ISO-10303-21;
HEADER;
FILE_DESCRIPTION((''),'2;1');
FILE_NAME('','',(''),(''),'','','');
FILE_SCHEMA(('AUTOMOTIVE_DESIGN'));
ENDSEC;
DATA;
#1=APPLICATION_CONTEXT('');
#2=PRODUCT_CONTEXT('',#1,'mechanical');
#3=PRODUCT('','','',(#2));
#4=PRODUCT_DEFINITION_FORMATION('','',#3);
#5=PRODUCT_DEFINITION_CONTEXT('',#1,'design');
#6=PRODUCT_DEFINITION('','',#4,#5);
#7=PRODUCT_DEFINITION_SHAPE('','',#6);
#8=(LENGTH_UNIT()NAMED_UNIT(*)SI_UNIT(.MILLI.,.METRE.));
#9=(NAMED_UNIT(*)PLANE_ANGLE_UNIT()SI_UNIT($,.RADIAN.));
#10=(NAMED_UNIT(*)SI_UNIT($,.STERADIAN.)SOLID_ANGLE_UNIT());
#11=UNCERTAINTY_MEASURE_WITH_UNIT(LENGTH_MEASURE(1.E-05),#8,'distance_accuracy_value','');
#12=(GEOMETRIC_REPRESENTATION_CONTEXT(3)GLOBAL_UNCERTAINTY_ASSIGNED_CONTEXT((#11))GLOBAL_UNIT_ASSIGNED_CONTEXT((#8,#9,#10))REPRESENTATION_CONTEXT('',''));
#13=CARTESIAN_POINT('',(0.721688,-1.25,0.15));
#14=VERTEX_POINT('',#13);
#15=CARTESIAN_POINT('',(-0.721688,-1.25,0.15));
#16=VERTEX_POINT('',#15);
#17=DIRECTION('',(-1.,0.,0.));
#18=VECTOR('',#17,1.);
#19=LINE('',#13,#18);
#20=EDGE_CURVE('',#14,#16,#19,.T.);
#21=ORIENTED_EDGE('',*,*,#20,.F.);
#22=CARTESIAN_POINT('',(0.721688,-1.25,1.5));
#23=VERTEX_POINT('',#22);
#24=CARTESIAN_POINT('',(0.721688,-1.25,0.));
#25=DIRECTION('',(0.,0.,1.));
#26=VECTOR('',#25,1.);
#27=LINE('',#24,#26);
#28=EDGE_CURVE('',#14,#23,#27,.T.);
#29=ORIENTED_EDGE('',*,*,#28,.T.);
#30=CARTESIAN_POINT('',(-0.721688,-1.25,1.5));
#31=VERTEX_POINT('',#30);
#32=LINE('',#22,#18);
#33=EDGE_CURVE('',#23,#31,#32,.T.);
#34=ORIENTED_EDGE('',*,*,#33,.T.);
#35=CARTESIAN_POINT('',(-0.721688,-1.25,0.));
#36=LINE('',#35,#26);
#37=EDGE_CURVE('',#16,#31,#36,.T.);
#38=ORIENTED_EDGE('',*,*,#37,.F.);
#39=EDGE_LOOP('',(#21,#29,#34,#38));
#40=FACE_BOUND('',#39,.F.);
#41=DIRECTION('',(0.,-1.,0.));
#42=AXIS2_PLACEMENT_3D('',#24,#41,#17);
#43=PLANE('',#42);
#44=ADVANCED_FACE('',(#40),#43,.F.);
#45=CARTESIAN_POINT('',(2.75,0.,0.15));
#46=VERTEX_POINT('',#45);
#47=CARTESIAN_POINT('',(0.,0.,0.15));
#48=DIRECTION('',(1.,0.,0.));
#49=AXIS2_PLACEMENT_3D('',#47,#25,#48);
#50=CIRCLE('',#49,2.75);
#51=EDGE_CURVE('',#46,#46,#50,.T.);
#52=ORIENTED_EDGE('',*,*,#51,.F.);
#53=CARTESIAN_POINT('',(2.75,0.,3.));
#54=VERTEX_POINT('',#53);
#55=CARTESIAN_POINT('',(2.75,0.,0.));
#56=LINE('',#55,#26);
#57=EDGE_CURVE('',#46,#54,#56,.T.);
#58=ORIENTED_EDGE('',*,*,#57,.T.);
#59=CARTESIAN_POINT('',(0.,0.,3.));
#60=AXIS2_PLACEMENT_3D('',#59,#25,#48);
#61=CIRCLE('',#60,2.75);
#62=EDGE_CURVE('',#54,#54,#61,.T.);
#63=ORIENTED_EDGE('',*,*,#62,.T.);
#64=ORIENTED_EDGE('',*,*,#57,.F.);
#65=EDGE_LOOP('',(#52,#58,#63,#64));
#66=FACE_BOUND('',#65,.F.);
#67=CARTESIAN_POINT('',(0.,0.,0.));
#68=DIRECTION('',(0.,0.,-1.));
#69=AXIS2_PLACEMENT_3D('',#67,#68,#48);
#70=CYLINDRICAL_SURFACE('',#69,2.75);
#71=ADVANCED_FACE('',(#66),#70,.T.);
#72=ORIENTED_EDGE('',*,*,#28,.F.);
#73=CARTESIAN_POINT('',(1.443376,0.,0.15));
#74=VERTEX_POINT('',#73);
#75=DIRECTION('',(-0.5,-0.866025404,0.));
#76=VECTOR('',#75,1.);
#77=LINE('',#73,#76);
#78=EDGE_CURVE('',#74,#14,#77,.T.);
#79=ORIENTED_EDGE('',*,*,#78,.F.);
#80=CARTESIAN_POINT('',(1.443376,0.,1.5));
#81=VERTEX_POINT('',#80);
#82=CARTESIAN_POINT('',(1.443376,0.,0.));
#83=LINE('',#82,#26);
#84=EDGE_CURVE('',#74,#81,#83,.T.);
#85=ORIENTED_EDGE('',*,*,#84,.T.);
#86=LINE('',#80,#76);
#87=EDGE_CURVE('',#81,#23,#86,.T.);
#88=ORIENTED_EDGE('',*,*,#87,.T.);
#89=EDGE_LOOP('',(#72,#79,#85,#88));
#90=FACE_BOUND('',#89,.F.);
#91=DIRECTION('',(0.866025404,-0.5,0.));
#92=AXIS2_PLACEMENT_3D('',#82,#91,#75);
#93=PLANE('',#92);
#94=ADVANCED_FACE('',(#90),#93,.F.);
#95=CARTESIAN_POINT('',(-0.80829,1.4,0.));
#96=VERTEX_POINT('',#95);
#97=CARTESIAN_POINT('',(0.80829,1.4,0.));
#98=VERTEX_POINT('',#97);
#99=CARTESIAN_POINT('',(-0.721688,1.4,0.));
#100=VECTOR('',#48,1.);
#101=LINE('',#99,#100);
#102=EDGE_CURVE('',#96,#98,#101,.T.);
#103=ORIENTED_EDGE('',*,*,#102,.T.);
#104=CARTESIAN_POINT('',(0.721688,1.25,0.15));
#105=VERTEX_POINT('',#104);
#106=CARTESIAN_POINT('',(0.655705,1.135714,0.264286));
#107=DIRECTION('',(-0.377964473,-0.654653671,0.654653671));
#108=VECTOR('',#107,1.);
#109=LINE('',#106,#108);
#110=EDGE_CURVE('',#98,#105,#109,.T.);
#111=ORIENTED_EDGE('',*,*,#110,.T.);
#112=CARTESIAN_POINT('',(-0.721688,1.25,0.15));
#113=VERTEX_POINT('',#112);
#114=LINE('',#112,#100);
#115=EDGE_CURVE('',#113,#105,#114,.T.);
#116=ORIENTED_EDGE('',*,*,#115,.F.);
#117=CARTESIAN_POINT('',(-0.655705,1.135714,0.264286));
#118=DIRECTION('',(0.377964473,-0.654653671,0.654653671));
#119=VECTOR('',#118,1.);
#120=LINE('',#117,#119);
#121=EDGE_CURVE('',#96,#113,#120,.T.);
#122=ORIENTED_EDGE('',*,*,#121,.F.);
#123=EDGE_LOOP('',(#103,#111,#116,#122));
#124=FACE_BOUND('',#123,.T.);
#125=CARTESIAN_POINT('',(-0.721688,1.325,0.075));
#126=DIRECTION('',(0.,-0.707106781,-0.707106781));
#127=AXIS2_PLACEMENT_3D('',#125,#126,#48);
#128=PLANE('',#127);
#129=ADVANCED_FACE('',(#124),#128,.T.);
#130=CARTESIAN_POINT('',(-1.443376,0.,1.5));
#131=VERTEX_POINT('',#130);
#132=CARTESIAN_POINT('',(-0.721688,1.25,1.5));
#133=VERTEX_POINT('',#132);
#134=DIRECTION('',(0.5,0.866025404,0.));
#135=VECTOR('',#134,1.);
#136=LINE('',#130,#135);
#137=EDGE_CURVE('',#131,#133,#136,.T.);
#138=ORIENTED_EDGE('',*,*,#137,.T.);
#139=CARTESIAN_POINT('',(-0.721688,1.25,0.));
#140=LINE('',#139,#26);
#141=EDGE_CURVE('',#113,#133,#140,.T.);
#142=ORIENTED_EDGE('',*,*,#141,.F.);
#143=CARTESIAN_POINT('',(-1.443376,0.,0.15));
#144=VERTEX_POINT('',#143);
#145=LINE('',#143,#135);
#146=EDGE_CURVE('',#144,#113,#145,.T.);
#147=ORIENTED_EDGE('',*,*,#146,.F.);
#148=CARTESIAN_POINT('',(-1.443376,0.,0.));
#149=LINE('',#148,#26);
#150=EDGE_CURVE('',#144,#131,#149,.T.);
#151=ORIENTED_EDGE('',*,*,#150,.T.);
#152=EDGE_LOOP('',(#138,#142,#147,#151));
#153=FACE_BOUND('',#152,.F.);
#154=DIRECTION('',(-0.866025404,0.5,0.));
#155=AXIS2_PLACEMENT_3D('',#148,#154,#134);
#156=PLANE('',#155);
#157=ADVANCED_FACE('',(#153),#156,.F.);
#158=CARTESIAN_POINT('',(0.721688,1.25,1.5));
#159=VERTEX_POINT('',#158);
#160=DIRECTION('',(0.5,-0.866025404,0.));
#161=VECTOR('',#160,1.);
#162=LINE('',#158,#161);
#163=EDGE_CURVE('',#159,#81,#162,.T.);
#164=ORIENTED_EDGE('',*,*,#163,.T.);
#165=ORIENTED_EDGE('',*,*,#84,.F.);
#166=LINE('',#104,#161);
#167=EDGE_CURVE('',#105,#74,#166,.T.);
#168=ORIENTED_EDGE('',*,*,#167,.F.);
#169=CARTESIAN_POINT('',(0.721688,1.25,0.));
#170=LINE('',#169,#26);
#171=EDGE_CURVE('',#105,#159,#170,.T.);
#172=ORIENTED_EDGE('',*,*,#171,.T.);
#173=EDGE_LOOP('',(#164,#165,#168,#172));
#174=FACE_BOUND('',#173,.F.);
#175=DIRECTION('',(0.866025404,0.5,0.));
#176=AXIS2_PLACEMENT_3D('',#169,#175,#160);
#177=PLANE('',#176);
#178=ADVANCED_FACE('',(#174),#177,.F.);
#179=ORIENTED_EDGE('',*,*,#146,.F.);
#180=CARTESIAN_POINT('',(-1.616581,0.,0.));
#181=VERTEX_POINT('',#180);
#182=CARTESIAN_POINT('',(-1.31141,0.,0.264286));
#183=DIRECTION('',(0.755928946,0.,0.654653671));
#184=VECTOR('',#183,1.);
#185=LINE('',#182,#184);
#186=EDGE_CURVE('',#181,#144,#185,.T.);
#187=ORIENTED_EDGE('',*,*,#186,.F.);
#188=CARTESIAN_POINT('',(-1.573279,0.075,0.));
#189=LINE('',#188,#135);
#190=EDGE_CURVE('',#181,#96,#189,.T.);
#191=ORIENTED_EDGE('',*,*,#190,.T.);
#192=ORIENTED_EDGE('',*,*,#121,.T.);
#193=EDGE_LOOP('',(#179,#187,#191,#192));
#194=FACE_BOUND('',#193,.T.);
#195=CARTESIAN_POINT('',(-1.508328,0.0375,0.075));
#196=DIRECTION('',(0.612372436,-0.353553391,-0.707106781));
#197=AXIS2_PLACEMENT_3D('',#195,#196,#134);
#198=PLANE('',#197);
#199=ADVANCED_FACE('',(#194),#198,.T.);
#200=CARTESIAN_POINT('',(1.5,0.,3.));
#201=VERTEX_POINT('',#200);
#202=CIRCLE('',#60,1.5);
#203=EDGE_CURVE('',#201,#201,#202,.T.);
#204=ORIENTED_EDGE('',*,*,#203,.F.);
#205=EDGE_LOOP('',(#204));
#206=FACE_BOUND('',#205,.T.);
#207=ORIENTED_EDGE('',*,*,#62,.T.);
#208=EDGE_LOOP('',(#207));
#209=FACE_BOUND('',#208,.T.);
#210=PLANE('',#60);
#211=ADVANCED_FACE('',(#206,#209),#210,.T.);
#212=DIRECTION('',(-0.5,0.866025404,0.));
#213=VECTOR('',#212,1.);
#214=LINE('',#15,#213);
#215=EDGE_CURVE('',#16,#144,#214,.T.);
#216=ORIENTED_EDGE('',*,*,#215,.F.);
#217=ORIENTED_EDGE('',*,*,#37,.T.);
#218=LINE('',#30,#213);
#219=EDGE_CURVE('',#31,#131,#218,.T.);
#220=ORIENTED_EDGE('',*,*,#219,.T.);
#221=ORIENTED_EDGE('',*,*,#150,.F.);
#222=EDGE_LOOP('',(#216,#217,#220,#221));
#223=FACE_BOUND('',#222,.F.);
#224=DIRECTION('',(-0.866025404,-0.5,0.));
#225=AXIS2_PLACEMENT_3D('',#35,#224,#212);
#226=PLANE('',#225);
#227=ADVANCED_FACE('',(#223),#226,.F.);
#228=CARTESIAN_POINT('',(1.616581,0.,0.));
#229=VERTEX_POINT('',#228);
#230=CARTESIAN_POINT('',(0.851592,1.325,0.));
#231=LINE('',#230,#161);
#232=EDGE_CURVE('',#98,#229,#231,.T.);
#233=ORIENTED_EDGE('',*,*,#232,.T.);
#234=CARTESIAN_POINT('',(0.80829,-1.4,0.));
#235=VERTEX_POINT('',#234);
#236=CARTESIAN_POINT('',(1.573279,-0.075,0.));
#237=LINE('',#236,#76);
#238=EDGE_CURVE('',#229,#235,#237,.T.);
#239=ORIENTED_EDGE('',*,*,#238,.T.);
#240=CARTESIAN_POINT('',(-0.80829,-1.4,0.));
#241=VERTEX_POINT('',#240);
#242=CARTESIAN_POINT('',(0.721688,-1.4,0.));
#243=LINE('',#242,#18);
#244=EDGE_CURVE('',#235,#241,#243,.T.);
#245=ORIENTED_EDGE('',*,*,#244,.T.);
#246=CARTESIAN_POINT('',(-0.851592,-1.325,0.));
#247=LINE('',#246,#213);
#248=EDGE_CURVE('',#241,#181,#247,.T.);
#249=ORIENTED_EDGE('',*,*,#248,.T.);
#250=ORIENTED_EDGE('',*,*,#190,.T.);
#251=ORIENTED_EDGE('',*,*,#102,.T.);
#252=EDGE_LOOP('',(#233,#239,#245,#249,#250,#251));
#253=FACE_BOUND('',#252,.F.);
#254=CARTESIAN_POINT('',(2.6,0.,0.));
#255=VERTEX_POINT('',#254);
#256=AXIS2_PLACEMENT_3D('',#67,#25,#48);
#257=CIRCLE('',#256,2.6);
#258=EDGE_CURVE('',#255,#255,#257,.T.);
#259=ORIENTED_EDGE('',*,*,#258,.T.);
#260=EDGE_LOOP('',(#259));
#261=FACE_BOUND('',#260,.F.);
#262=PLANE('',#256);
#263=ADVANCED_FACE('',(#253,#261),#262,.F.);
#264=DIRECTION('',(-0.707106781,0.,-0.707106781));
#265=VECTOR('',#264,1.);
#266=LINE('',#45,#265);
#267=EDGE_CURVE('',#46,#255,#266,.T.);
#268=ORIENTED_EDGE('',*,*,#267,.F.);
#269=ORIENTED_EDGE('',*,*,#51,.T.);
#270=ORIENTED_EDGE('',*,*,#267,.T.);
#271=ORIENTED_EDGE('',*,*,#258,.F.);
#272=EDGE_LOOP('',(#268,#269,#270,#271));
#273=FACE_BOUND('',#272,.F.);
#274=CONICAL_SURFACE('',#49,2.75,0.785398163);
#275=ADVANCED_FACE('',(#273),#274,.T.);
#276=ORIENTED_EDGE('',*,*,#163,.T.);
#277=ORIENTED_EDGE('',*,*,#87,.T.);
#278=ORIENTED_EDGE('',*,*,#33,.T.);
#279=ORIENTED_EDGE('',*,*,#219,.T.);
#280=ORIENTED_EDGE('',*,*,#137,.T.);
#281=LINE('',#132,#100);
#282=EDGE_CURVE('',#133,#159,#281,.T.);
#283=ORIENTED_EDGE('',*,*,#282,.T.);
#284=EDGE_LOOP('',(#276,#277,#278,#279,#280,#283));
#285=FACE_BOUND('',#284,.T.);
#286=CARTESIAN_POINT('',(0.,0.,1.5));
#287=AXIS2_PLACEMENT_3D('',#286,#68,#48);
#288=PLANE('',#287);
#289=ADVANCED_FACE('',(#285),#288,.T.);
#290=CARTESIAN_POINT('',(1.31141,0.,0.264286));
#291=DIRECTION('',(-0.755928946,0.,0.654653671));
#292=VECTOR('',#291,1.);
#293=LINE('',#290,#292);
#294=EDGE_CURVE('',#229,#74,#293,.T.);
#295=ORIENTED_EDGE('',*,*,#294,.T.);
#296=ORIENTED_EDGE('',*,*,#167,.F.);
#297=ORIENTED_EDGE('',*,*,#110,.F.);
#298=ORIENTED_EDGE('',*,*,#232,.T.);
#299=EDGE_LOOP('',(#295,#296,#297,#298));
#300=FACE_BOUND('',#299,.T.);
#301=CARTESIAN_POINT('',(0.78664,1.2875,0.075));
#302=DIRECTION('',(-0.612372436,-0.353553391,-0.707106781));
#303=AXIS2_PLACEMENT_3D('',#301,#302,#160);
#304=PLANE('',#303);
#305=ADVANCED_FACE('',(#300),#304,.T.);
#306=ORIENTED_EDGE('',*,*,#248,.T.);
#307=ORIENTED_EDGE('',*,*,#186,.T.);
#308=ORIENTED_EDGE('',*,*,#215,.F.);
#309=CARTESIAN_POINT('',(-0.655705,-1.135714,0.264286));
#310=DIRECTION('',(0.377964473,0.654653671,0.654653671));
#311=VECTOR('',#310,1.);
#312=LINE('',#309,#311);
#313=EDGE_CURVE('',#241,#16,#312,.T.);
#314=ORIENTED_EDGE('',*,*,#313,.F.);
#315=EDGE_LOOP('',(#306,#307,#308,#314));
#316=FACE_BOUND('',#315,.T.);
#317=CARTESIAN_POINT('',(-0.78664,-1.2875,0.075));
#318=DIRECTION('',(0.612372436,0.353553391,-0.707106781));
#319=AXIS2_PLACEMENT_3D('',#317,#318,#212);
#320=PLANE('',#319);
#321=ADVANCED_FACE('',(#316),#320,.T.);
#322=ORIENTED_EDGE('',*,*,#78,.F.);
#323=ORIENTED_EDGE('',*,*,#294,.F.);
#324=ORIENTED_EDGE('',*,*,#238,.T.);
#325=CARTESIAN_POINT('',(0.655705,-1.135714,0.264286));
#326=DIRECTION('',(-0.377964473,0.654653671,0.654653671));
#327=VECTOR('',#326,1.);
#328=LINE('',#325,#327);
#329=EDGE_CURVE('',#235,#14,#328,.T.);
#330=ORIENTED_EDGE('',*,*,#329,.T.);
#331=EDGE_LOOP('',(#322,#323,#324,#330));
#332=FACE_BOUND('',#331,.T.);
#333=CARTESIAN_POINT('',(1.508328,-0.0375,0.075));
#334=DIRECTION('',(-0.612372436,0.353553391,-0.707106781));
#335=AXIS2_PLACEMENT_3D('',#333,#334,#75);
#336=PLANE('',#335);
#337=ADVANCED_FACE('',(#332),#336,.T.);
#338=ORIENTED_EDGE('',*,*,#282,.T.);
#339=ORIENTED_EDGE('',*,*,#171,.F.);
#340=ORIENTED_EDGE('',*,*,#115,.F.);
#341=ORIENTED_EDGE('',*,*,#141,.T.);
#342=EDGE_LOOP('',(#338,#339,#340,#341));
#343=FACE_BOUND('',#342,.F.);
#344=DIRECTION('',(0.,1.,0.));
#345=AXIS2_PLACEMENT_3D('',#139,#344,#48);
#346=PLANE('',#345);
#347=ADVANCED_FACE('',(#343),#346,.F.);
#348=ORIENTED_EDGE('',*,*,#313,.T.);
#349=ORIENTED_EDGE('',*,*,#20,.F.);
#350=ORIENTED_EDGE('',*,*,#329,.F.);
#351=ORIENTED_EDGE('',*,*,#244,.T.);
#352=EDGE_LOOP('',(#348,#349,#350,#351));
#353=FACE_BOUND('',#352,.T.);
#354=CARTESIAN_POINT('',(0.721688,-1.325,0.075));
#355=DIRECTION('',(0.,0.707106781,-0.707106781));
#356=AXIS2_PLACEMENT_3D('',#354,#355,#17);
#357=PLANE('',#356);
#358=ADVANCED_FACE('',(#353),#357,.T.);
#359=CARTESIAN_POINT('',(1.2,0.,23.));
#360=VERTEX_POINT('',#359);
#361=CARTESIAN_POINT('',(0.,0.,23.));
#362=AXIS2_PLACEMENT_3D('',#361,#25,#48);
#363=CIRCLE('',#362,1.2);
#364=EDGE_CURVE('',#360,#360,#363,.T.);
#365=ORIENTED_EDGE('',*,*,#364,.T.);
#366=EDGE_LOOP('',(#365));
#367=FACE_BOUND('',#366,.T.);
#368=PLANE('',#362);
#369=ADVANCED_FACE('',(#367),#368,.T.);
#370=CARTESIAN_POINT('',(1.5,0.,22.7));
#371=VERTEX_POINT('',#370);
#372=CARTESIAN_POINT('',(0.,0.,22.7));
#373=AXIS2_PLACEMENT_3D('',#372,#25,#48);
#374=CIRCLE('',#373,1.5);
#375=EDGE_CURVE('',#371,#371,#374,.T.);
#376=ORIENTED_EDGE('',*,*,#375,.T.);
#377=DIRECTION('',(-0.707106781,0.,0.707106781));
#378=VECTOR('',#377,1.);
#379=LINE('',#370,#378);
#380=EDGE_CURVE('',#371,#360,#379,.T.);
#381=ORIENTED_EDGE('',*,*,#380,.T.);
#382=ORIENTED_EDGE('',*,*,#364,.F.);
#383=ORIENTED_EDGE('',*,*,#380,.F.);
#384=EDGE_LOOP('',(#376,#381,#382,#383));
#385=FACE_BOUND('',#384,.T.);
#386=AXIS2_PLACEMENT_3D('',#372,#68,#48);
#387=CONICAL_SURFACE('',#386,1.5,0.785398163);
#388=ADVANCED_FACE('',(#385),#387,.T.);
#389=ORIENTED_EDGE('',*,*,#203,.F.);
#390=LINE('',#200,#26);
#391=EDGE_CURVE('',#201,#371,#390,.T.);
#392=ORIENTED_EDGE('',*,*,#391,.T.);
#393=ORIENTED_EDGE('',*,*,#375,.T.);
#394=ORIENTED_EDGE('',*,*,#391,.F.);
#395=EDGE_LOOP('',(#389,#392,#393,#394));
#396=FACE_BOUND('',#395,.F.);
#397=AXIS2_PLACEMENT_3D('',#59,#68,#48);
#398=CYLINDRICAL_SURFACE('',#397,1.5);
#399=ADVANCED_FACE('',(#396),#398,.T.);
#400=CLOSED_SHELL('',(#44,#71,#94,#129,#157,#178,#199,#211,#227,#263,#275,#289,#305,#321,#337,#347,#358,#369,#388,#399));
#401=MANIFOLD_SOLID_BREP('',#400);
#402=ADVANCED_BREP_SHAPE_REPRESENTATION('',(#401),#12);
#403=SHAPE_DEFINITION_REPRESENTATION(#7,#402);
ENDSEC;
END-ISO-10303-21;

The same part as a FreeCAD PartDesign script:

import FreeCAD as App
import Part
import Sketcher
Q = App.Units.Quantity


def edges_at(feature, points):
    """Names of the edges that pass closest to the given points."""
    edges = feature.Shape.Edges
    near = lambda p: min(range(len(edges)), key=lambda i: edges[i].distToShape(Part.Vertex(*p))[0])
    return sorted({f"Edge{near(p) + 1}" for p in points})

doc = App.newDocument("Part")
body = doc.addObject("PartDesign::Body", "Body")

# Sketch on XY plane
sketch1 = body.newObject("Sketcher::SketchObject", "Sketch")
sketch1.AttachmentSupport = (doc.getObject("XY_Plane"), [""])
sketch1.MapMode = "FlatFace"
sketch1.addGeometry(Part.Circle(App.Vector(0, 0, 0), App.Vector(0, 0, 1), 2.8), False)
sketch1.addConstraint(Sketcher.Constraint("Coincident", 0, 3, -1, 1))
sketch1.addConstraint(Sketcher.Constraint("Diameter", 0, Q("5.5 mm")))
pad1 = body.newObject("PartDesign::Pad", "Pad")
pad1.Profile = sketch1
pad1.Length = 3

# Sketch on XY plane
sketch2 = body.newObject("Sketcher::SketchObject", "Sketch001")
sketch2.AttachmentSupport = (doc.getObject("XY_Plane"), [""])
sketch2.MapMode = "FlatFace"
sketch2.addGeometry(Part.LineSegment(App.Vector(0.7, -1.2, 0), App.Vector(-0.7, -1.2, 0)), False)
sketch2.addGeometry(Part.LineSegment(App.Vector(-0.7, -1.2, 0), App.Vector(-1.4, 0, 0)), False)
sketch2.addGeometry(Part.LineSegment(App.Vector(-1.4, 0, 0), App.Vector(-0.7, 1.2, 0)), False)
sketch2.addGeometry(Part.LineSegment(App.Vector(-0.7, 1.2, 0), App.Vector(0.7, 1.2, 0)), False)
sketch2.addGeometry(Part.LineSegment(App.Vector(0.7, 1.2, 0), App.Vector(1.4, 0, 0)), False)
sketch2.addGeometry(Part.LineSegment(App.Vector(1.4, 0, 0), App.Vector(0.7, -1.2, 0)), False)
sketch2.addConstraint(Sketcher.Constraint("Coincident", 0, 2, 1, 1))
sketch2.addConstraint(Sketcher.Constraint("Coincident", 1, 2, 2, 1))
sketch2.addConstraint(Sketcher.Constraint("Coincident", 2, 2, 3, 1))
sketch2.addConstraint(Sketcher.Constraint("Coincident", 3, 2, 4, 1))
sketch2.addConstraint(Sketcher.Constraint("Coincident", 4, 2, 5, 1))
sketch2.addConstraint(Sketcher.Constraint("Coincident", 5, 2, 0, 1))
sketch2.addConstraint(Sketcher.Constraint("Horizontal", 0))
sketch2.addConstraint(Sketcher.Constraint("Horizontal", 3))
sketch2.addConstraint(Sketcher.Constraint("Symmetric", 0, 2, 3, 2, -1, 1))
sketch2.addConstraint(Sketcher.Constraint("Symmetric", 1, 2, 4, 2, -1, 1))
sketch2.addConstraint(Sketcher.Constraint("PointOnObject", 1, 2, -1))
sketch2.addConstraint(Sketcher.Constraint("Parallel", 2, 5))
sketch2.addConstraint(Sketcher.Constraint("Vertical", 0, 2, 2, 2))
sketch2.addConstraint(Sketcher.Constraint("Angle", 1, Q("120 deg")))
sketch2.addConstraint(Sketcher.Constraint("DistanceY", 0, 2, 2, 2, Q("2.5 mm")))
sketch2.addConstraint(Sketcher.Constraint("DistanceX", 0, 2, 0, 1, Q("1.443376 mm")))
pocket1 = body.newObject("PartDesign::Pocket", "Pocket")
pocket1.Profile = sketch2
pocket1.Length = 1.5
pocket1.Reversed = True

# Sketch on XY plane
sketch3 = body.newObject("Sketcher::SketchObject", "Sketch002")
sketch3.AttachmentSupport = (doc.getObject("XY_Plane"), [""])
sketch3.MapMode = "FlatFace"
sketch3.AttachmentOffset = App.Placement(App.Vector(0, 0, 3), App.Rotation())
sketch3.addGeometry(Part.Circle(App.Vector(0, 0, 0), App.Vector(0, 0, 1), 1.5), False)
sketch3.addConstraint(Sketcher.Constraint("Coincident", 0, 3, -1, 1))
sketch3.addConstraint(Sketcher.Constraint("Diameter", 0, Q("3 mm")))
pad2 = body.newObject("PartDesign::Pad", "Pad001")
pad2.Profile = sketch3
pad2.Length = 20
doc.recompute()

chamfer = body.newObject("PartDesign::Chamfer", "Chamfer")
chamfer.Base = (pad2, edges_at(pad2, [
    (-2.75, 0, 0),
    (0, -1.25, 0),
    (1.083, -0.625, 0),
    (1.083, 0.625, 0),
    (0, 1.25, 0),
    (-1.083, -0.625, 0),
    (-1.083, 0.625, 0),
]))
chamfer.Size = 0.15
doc.recompute()

chamfer2 = body.newObject("PartDesign::Chamfer", "Chamfer001")
chamfer2.Base = (chamfer, edges_at(chamfer, [(-1.5, 0, 23)]))
chamfer2.Size = 0.3

doc.recompute()
